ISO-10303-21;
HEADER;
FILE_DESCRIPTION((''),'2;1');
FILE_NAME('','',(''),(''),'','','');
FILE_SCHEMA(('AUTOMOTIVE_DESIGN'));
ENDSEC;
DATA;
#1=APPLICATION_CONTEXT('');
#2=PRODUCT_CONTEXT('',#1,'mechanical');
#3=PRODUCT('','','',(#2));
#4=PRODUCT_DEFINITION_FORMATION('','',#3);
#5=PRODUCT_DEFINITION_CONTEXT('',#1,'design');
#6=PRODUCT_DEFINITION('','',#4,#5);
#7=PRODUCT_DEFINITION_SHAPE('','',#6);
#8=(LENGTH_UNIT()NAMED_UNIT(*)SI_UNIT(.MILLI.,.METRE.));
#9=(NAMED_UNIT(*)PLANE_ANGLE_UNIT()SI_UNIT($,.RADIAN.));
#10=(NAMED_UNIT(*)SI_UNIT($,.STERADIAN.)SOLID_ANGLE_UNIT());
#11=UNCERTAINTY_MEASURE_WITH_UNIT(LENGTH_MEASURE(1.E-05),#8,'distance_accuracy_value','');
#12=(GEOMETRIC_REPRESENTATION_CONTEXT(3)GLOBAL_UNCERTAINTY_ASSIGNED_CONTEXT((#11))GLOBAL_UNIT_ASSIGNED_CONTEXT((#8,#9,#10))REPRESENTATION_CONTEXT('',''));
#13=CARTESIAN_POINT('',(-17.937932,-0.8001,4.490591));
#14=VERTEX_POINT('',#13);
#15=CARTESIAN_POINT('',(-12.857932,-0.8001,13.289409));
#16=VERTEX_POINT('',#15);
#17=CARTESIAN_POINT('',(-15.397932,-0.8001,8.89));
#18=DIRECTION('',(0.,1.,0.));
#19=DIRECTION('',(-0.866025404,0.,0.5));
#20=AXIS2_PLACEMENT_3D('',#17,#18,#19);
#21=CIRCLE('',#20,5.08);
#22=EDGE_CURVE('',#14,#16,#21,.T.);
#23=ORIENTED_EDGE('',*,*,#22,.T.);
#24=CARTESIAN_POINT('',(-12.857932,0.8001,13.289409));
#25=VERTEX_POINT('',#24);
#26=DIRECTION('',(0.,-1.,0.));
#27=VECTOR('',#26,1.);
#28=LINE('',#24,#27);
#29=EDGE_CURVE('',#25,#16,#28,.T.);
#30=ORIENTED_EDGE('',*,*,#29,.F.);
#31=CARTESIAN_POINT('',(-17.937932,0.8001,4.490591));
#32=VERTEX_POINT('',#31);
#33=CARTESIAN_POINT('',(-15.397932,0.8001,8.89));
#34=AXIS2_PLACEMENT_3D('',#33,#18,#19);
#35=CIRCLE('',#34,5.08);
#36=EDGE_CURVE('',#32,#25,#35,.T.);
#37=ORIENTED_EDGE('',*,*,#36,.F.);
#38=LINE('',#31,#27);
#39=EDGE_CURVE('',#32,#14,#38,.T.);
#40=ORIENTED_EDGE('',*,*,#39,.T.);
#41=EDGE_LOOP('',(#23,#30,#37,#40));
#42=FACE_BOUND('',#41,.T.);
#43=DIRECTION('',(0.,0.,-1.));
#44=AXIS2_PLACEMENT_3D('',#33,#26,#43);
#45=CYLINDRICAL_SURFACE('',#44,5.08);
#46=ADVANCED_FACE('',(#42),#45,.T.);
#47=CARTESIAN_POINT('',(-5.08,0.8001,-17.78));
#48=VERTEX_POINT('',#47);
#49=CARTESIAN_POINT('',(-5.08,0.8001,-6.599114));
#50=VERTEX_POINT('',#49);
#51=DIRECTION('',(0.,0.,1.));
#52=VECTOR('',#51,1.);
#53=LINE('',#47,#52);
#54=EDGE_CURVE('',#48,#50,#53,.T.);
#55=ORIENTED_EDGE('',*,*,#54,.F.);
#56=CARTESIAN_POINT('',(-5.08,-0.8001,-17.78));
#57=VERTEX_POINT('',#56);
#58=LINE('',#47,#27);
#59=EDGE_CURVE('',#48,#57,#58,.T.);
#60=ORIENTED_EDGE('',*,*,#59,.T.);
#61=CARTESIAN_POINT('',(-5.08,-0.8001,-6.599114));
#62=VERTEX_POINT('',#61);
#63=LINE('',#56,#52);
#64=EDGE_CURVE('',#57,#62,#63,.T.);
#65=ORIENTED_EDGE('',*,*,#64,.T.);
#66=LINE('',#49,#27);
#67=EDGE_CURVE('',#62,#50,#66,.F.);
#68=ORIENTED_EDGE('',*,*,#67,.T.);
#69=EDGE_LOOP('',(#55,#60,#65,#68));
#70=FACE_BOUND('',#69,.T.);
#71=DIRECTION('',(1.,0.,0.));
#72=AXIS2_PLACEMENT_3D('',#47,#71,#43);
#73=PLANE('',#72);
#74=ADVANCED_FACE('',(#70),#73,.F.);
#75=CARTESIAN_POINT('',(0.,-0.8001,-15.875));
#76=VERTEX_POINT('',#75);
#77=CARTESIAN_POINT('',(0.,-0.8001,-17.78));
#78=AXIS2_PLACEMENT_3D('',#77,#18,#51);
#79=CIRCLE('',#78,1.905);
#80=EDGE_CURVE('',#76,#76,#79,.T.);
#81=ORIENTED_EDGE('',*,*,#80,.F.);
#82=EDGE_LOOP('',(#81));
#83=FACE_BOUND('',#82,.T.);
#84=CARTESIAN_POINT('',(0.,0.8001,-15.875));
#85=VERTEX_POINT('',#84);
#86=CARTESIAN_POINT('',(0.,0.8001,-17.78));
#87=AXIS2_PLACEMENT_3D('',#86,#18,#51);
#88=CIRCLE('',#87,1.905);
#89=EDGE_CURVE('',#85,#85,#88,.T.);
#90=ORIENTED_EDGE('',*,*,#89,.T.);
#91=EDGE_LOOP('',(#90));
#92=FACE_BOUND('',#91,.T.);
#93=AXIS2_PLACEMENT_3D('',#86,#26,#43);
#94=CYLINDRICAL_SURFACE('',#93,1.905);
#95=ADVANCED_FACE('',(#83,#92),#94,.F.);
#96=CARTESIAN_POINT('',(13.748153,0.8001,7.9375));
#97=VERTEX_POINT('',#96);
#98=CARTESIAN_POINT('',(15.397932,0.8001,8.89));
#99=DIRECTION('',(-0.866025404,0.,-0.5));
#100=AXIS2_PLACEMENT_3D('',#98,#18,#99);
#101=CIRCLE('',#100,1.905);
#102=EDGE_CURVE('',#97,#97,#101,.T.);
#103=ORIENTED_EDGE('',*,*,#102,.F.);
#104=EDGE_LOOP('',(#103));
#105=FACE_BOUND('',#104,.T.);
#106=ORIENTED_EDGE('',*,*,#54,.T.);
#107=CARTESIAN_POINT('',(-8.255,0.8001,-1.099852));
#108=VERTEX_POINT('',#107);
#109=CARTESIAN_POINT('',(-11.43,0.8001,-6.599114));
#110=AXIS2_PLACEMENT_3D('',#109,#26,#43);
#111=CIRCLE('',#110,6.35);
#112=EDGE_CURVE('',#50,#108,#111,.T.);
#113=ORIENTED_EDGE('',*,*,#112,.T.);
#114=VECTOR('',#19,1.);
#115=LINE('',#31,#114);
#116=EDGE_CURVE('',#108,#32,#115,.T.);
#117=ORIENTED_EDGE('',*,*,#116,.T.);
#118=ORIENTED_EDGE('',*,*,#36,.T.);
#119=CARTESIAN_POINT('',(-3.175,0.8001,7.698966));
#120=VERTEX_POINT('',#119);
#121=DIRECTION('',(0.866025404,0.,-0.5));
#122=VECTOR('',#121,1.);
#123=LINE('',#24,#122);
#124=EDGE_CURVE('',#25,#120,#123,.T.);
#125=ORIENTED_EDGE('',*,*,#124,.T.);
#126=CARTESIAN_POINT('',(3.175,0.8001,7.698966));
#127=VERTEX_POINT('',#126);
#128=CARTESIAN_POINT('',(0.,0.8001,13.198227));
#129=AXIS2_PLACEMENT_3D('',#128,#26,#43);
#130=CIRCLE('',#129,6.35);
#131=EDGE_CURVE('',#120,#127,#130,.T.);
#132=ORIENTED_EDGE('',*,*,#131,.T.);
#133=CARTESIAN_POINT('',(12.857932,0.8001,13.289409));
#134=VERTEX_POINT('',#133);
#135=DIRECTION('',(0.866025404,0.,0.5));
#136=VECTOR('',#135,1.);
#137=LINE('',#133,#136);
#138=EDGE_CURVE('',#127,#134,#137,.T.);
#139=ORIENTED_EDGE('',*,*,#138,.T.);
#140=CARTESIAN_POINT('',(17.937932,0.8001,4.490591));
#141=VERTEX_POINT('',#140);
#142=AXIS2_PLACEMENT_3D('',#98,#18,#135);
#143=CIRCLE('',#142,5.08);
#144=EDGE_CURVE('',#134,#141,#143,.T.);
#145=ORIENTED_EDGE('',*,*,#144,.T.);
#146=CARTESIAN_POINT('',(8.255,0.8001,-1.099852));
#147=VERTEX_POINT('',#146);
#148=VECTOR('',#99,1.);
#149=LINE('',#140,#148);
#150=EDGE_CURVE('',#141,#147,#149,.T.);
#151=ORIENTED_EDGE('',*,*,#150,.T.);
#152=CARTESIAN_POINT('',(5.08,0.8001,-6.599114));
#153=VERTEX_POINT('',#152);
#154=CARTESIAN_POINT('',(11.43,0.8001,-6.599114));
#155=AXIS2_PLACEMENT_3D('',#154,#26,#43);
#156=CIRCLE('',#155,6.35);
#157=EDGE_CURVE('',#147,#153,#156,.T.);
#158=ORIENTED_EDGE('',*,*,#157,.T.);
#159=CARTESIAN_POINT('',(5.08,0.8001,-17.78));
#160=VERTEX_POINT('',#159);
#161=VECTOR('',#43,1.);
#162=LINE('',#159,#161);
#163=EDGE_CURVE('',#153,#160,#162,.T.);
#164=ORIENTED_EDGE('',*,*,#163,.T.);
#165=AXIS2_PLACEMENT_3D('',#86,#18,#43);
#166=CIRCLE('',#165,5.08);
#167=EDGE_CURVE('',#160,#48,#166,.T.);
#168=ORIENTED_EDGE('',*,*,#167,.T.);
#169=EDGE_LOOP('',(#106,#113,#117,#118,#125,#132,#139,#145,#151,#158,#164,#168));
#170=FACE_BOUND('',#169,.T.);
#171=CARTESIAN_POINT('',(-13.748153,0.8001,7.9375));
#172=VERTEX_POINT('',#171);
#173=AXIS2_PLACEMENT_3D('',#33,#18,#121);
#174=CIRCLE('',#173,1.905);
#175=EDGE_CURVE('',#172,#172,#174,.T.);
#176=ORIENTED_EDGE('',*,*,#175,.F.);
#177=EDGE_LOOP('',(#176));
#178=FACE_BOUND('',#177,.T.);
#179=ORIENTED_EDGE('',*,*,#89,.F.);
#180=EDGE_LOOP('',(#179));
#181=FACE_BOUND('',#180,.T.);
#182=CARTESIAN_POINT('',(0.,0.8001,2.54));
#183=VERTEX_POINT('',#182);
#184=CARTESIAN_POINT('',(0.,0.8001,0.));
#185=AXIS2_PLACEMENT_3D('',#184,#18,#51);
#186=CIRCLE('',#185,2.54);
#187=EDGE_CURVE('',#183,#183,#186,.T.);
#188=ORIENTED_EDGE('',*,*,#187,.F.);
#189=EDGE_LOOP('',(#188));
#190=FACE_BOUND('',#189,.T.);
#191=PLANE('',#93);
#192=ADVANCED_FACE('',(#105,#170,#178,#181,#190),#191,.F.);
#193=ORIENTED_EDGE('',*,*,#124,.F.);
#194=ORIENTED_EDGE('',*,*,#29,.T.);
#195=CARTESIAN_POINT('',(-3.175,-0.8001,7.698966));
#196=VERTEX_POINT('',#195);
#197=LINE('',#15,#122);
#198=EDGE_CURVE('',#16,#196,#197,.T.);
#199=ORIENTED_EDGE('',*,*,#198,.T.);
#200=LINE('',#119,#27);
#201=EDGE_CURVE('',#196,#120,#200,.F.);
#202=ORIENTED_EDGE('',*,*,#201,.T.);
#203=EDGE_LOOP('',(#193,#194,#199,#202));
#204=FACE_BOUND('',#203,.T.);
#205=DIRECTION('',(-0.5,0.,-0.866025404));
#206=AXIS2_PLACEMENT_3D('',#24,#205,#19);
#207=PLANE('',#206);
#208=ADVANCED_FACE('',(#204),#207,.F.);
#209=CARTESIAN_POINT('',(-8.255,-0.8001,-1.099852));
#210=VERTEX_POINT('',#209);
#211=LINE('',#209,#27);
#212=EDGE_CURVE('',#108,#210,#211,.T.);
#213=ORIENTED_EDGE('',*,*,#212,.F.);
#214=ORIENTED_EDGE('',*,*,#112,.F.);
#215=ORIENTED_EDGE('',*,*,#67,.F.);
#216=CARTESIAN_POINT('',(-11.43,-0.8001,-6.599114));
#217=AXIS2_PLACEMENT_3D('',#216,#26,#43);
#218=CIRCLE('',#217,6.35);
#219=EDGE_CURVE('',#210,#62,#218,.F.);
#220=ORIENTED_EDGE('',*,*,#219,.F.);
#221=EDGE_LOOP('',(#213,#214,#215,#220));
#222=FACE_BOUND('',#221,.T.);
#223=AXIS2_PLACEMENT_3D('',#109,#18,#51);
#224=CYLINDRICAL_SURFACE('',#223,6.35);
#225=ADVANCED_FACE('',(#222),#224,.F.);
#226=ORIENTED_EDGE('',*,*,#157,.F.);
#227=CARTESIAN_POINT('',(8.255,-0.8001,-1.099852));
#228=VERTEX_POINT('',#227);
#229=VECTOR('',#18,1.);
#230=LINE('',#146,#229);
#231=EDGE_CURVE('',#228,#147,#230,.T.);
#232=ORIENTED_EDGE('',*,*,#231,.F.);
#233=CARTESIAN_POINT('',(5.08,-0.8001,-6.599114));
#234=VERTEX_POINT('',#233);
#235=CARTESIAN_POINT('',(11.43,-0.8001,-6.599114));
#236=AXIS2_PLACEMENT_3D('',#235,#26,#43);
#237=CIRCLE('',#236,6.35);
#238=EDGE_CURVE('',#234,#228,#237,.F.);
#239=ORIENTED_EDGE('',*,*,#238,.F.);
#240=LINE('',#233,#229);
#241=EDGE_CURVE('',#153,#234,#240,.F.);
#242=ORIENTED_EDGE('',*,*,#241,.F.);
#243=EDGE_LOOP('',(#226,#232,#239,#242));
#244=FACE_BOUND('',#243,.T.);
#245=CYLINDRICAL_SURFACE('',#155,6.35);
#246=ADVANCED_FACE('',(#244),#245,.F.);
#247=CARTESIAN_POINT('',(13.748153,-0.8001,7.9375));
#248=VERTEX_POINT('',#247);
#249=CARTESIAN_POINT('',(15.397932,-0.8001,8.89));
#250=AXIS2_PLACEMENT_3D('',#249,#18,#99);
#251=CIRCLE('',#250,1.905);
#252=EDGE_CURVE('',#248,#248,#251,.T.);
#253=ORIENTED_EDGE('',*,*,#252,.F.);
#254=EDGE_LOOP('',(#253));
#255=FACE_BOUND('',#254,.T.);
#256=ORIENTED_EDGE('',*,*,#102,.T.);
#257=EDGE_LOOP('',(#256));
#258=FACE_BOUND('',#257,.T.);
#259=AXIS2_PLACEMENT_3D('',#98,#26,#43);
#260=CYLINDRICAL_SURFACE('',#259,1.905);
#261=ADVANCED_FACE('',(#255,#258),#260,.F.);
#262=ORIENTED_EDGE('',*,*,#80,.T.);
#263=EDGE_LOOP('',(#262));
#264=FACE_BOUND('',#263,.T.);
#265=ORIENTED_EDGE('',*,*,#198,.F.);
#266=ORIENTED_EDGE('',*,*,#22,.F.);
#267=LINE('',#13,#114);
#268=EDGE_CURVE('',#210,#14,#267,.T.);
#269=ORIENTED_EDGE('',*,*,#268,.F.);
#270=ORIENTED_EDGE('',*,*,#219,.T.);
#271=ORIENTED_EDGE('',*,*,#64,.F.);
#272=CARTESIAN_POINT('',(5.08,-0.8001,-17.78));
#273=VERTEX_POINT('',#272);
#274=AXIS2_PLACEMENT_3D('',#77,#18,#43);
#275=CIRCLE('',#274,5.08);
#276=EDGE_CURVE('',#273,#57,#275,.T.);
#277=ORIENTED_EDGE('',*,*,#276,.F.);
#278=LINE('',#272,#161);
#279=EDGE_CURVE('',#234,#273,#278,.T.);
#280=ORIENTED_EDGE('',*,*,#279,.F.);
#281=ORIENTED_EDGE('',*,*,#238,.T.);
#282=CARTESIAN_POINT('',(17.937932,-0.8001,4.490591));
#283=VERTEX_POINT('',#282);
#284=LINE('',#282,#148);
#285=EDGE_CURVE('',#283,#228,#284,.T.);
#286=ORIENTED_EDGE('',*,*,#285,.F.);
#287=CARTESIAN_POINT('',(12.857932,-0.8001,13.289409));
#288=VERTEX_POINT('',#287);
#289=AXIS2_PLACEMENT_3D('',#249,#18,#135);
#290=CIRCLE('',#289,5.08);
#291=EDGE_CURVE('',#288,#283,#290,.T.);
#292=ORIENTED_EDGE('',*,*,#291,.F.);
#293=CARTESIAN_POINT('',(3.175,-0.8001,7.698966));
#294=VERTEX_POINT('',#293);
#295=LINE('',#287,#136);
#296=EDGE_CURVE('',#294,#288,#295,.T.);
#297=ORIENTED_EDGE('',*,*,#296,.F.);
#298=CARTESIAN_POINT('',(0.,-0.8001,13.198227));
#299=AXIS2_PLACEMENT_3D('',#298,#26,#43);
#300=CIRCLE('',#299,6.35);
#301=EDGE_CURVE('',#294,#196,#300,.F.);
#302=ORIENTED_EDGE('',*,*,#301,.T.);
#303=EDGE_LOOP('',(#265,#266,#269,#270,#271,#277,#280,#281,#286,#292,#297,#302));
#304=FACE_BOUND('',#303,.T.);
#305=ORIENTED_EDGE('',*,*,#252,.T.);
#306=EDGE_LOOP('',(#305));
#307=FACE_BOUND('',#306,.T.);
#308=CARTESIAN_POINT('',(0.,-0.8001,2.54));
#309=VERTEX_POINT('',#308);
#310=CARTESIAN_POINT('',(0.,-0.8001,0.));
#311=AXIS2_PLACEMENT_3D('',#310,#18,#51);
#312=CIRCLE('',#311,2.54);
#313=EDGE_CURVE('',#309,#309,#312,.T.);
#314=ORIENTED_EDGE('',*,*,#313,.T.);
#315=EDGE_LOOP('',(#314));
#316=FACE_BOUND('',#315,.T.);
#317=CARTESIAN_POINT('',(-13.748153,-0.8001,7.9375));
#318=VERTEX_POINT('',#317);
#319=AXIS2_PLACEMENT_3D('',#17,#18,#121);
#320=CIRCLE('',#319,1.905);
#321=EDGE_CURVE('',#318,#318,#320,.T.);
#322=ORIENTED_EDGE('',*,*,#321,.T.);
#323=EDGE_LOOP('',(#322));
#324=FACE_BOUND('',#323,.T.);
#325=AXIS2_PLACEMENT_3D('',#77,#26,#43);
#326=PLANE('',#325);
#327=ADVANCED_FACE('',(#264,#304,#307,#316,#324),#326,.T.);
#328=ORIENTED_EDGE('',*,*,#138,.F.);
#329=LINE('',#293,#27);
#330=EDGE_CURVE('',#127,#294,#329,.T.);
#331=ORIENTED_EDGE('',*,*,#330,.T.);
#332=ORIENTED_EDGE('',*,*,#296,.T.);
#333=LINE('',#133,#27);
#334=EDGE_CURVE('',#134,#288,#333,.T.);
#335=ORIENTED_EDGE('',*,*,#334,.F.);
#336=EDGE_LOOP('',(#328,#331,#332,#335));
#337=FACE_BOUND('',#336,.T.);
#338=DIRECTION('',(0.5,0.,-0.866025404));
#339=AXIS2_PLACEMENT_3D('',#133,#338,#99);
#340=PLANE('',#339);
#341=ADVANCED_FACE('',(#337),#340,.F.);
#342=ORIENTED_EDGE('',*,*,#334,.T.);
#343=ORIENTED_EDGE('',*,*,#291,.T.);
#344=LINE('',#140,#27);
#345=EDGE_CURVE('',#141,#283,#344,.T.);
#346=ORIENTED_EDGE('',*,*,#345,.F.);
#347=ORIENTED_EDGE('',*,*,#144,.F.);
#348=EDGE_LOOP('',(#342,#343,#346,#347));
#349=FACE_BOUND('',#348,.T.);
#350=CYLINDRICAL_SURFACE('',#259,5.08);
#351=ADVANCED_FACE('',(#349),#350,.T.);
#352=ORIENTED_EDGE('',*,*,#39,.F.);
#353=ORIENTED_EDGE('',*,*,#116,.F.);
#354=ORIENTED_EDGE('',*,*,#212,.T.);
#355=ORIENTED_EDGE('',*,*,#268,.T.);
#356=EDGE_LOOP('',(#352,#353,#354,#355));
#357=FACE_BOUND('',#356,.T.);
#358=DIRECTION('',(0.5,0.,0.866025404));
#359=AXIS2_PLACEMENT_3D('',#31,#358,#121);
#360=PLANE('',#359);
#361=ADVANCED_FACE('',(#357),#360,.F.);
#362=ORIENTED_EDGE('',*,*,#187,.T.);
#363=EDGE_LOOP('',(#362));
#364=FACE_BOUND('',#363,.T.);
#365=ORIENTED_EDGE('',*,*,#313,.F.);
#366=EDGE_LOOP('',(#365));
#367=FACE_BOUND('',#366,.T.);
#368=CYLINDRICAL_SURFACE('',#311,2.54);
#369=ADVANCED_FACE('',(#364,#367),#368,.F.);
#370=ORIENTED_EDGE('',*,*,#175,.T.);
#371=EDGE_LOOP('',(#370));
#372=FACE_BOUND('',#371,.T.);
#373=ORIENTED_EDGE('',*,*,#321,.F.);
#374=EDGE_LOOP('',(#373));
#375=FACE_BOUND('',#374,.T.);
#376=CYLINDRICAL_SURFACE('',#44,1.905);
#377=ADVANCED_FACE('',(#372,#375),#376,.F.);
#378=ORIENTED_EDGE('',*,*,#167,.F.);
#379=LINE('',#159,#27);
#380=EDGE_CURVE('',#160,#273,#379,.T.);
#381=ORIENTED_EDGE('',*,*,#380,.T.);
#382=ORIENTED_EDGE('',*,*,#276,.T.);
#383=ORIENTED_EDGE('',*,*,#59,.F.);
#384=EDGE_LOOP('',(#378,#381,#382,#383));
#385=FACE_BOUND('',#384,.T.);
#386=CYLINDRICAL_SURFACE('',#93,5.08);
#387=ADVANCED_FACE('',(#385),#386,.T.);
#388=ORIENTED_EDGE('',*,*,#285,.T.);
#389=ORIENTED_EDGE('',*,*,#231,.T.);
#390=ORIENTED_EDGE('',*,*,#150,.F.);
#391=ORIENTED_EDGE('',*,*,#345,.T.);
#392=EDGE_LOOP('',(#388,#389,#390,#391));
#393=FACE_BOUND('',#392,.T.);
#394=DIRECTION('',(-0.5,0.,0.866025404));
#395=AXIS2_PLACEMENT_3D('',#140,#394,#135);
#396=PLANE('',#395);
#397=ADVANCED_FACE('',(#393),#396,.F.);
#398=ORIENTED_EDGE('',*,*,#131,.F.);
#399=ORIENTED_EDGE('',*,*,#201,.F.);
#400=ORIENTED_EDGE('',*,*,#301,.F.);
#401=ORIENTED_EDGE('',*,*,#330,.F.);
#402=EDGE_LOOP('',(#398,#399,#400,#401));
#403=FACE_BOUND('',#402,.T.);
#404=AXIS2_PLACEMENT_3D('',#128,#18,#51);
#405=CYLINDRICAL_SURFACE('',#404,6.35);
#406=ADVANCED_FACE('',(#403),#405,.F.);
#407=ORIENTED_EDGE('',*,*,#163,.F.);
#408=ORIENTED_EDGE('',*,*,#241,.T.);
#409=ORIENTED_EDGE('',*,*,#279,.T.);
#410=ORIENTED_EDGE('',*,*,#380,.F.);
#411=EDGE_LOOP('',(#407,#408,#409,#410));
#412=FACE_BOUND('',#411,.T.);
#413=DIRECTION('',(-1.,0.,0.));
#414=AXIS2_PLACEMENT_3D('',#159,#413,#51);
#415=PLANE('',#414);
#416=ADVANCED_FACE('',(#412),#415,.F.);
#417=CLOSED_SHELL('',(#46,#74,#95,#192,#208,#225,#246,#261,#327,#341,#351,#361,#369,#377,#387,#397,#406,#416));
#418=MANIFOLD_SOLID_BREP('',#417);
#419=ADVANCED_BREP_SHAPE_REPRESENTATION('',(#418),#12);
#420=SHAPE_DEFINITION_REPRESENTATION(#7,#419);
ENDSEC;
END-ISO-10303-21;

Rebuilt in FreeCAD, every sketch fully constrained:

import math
import FreeCAD as App
import Part
import Sketcher
from FreeCAD import Vector
Q = App.Units.Quantity


def edges_at(feature, points):
    """Names of the edges that pass closest to the given points."""
    edges = feature.Shape.Edges
    near = lambda p: min(range(len(edges)), key=lambda i: edges[i].distToShape(Part.Vertex(*p))[0])
    return sorted({f"Edge{near(p) + 1}" for p in points})

doc = App.newDocument("Part")
body = doc.addObject("PartDesign::Body", "Body")

# Sketch on XZ plane
sketch1 = doc.addObject("Sketcher::SketchObject", "Sketch")
body.addObject(sketch1)
sketch1.AttachmentSupport = (doc.XZ_Plane, [""])
sketch1.MapMode = "FlatFace"
sketch1.addGeometry([
    Part.LineSegment(Vector(-5.08, -17.78, 0), Vector(-5.08, 0, 0)),  # 0
    Part.LineSegment(Vector(-5.08, 0, 0), Vector(5.08, 0, 0)),  # 1
    Part.LineSegment(Vector(5.08, 0, 0), Vector(5.08, -17.78, 0)),  # 2
    Part.ArcOfCircle(Part.Circle(Vector(0, -17.78, 0), Vector(0, 0, 1), 5.08), math.radians(180), math.radians(360)),  # 3
    Part.Circle(Vector(0, -17.78, 0), Vector(0, 0, 1), 1.905),  # 4
], False)
sketch1.addConstraint([
    Sketcher.Constraint("Coincident", 0, 2, 1, 1),
    Sketcher.Constraint("Coincident", 1, 2, 2, 1),
    Sketcher.Constraint("Tangent", 2, 2, 3, 2),
    Sketcher.Constraint("Tangent", 3, 1, 0, 1),
    Sketcher.Constraint("Vertical", 0),
    Sketcher.Constraint("Horizontal", 1),
    Sketcher.Constraint("Vertical", 2),
    Sketcher.Constraint("Coincident", 4, 3, 3, 3),
    Sketcher.Constraint("Symmetric", 0, 2, 1, 2, -1, 1),
    Sketcher.Constraint("Radius", 3, Q("0.2 in")),
    Sketcher.Constraint("Diameter", 4, Q("0.15 in")),
    Sketcher.Constraint("DistanceY", 0, 1, 0, 2, Q("0.7 in")),
])
pad1 = doc.addObject("PartDesign::Pad", "Pad")
body.addObject(pad1)
pad1.Profile = sketch1
pad1.Length = Q("0.063 in")
pad1.Midplane = True
doc.recompute()

polarpattern = doc.addObject("PartDesign::PolarPattern", "PolarPattern")
body.addObject(polarpattern)
polarpattern.Originals = [pad1]
polarpattern.Axis = (doc.Y_Axis, [""])
polarpattern.Angle = 360
polarpattern.Occurrences = 3
body.Tip = polarpattern

# Sketch on XZ plane
sketch2 = doc.addObject("Sketcher::SketchObject", "Sketch001")
body.addObject(sketch2)
sketch2.AttachmentSupport = (doc.XZ_Plane, [""])
sketch2.MapMode = "FlatFace"
sketch2.AttachmentOffset = App.Placement(Vector(0, 0, -0.0315 * 25.4), App.Rotation())
sketch2.addGeometry(Part.Circle(Vector(0, 0, 0), Vector(0, 0, 1), 2.54), False)
sketch2.addConstraint([
    Sketcher.Constraint("Coincident", 0, 3, -1, 1),
    Sketcher.Constraint("Diameter", 0, Q("0.2 in")),
])
pocket1 = doc.addObject("PartDesign::Pocket", "Pocket")
body.addObject(pocket1)
pocket1.Profile = sketch2
pocket1.Type = "ThroughAll"
pocket1.Reversed = True
doc.recompute()

fillet = doc.addObject("PartDesign::Fillet", "Fillet")
body.addObject(fillet)
fillet.Base = (pocket1, edges_at(pocket1, [(5.08, 0, -2.933), (-5.08, 0, -2.933), (0, 0, 5.866)]))
fillet.Radius = Q("0.25 in")

doc.recompute()
